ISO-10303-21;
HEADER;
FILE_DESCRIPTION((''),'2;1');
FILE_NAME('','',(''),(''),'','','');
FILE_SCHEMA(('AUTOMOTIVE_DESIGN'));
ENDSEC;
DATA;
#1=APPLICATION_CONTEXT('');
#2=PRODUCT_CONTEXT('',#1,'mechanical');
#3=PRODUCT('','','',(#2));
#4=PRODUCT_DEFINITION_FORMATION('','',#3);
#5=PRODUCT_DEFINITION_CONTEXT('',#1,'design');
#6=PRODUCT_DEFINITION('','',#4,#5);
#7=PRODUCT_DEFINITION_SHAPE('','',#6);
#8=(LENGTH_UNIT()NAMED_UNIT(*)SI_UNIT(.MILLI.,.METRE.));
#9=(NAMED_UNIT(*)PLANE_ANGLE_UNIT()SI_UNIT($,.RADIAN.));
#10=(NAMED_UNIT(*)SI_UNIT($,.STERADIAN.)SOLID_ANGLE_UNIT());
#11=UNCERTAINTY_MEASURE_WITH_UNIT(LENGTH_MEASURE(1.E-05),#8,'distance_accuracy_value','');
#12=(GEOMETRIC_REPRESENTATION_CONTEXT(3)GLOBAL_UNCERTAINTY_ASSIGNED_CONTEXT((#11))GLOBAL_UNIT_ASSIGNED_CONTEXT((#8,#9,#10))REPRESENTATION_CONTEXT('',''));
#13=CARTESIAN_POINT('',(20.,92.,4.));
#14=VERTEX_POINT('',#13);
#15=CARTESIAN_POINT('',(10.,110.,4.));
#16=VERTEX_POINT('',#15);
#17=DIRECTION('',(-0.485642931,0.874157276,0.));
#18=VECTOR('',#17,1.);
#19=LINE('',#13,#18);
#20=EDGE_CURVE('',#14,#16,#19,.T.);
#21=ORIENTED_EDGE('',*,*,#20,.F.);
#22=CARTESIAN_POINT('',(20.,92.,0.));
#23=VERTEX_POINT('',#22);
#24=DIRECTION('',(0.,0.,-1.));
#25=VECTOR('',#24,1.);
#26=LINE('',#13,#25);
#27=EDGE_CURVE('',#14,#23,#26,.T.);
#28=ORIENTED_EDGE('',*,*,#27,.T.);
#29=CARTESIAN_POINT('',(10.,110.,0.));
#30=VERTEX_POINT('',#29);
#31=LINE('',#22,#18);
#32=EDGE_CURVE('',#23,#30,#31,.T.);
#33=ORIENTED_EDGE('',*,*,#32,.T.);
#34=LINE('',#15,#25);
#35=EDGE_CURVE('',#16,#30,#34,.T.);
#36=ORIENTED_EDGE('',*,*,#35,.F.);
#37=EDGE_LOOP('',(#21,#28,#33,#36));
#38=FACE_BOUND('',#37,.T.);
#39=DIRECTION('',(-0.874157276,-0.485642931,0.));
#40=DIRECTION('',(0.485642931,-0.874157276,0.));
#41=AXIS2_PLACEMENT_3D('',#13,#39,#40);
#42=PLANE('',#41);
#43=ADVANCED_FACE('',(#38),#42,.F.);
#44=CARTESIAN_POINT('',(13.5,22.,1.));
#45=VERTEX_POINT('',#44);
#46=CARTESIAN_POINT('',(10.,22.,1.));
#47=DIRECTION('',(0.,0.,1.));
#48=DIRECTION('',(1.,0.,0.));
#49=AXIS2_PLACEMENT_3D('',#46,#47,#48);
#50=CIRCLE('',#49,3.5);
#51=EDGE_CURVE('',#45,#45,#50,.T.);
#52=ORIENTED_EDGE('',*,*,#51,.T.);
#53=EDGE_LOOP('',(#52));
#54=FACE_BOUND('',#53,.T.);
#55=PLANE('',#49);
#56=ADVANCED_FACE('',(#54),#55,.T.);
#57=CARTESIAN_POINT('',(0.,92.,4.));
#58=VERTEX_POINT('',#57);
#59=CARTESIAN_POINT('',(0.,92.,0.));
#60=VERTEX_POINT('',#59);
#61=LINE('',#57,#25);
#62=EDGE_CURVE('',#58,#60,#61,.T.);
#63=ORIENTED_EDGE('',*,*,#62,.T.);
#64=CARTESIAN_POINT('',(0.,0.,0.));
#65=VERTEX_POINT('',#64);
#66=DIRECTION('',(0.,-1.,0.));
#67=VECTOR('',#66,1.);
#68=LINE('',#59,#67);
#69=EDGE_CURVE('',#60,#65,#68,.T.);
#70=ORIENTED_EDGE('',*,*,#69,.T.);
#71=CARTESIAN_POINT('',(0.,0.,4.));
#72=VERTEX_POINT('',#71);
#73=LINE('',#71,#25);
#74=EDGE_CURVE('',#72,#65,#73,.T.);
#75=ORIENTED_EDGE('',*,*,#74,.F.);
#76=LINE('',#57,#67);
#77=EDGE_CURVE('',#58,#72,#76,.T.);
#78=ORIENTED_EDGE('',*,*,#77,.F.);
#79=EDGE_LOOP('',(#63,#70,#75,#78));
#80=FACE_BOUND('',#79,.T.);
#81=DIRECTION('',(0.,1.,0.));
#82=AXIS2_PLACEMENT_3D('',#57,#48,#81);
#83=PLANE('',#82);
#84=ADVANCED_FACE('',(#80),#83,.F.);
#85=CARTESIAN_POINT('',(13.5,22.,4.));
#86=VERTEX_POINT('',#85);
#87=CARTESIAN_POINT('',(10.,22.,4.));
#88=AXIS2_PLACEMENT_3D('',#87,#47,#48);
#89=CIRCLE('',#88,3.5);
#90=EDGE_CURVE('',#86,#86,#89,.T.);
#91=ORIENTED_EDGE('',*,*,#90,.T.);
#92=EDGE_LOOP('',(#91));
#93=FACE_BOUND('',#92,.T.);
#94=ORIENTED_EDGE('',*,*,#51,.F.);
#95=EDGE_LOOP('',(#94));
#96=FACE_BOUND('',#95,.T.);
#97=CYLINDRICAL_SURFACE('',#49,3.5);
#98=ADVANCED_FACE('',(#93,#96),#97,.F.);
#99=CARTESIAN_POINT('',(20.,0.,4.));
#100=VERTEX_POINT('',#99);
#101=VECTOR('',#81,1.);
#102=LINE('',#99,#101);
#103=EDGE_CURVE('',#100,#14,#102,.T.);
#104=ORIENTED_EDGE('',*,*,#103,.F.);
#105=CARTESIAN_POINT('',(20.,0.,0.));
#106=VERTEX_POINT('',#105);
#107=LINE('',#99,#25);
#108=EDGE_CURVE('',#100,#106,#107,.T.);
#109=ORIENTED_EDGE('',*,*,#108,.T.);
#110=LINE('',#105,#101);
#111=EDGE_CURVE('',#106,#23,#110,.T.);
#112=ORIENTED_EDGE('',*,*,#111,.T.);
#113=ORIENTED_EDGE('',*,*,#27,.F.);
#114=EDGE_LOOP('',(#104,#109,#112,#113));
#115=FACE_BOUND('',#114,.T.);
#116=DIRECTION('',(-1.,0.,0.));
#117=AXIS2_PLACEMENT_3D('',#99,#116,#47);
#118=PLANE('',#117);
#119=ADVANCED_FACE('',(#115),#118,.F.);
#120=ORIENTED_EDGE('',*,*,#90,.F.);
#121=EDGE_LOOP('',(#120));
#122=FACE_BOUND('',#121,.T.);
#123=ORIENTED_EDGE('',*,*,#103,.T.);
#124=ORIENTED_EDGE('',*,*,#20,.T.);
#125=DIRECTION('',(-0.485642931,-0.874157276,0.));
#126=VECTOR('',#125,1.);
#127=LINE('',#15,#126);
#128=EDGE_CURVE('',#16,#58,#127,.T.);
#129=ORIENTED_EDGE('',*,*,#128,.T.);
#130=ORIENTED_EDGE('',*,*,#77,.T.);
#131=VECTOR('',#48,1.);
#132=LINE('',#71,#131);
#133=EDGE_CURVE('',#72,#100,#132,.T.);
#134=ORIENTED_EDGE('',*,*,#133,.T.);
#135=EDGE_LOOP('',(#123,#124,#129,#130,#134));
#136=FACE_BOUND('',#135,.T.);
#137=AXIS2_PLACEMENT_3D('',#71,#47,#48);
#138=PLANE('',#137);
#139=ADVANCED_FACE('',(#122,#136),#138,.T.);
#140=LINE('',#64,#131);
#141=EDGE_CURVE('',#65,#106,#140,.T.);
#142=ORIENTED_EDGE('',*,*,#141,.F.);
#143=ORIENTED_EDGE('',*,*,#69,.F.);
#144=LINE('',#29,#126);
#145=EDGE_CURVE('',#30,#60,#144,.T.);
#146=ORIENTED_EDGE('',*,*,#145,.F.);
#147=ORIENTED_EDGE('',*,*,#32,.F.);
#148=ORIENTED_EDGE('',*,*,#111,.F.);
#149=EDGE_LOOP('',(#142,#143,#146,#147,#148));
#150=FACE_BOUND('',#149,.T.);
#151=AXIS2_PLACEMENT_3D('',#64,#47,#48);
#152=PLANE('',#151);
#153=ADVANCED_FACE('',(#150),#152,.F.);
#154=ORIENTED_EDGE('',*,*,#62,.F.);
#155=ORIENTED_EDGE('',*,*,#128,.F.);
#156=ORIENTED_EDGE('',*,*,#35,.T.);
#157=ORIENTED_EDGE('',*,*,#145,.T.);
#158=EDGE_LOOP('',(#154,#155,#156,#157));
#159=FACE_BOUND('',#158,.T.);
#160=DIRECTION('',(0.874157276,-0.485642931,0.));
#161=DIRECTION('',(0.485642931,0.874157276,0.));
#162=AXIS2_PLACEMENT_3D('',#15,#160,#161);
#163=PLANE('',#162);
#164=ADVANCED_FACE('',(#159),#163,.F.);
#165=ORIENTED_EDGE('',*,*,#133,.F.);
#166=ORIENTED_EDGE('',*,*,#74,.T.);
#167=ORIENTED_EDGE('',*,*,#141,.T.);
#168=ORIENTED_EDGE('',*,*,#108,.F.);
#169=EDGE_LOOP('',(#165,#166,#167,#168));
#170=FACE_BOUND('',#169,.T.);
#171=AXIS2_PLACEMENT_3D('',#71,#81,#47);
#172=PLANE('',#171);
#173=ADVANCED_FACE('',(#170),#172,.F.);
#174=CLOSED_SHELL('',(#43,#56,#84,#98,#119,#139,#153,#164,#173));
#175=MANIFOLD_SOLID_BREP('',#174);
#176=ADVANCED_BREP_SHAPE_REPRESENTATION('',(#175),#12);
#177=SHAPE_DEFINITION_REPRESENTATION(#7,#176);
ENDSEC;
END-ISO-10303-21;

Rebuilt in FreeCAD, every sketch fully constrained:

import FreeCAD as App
import Part
import Sketcher

V = App.Vector


def add_polygon(sketch, points):
    """Adds a closed chain of lines whose ends are joined by coincident constraints."""
    first, n = sketch.GeometryCount, len(points)
    for a, b in zip(points, points[1:] + points[:1]):
        sketch.addGeometry(Part.LineSegment(App.Vector(*a, 0), App.Vector(*b, 0)), False)
    for i in range(n):
        sketch.addConstraint(Sketcher.Constraint("Coincident", first + i, 2, first + (i + 1) % n, 1))

doc = App.newDocument("Part")
body = doc.addObject("PartDesign::Body", "Body")

# Sketch on XY plane
sketch1 = body.newObject("Sketcher::SketchObject", "Sketch")
sketch1.AttachmentSupport = (doc.getObject("XY_Plane"), [""])
sketch1.MapMode = "FlatFace"
add_polygon(sketch1, [(0, 0), (20, 0), (20, 92), (10, 110), (0, 92)])  # lines 0-4
sketch1.addConstraint([
    Sketcher.Constraint("Horizontal", 0),
    Sketcher.Constraint("Vertical", 1),
    Sketcher.Constraint("Vertical", 4),
    Sketcher.Constraint("Coincident", 4, 2, -1, 1),
    Sketcher.Constraint("Horizontal", 1, 2, 3, 2),
    Sketcher.Constraint("Equal", 2, 3),
    Sketcher.Constraint("DistanceX", 0, 1, 0, 2, 20.0),
    Sketcher.Constraint("DistanceY", 1, 1, 1, 2, 92.0),
    Sketcher.Constraint("DistanceY", -1, 1, 2, 2, 110.0),
])
pad1 = body.newObject("PartDesign::Pad", "Pad")
pad1.Profile = sketch1
pad1.Length = 4

# Sketch on XY plane
sketch2 = body.newObject("Sketcher::SketchObject", "Sketch001")
sketch2.AttachmentSupport = (doc.getObject("XY_Plane"), [""])
sketch2.MapMode = "FlatFace"
sketch2.AttachmentOffset = App.Placement(V(0, 0, 4), App.Rotation())
sketch2.addGeometry(Part.Circle(V(10, 22, 0), V(0, 0, 1), 3.5), False)
sketch2.addConstraint([
    Sketcher.Constraint("Diameter", 0, 7.0),
    Sketcher.Constraint("DistanceX", -1, 1, 0, 3, 10.0),
    Sketcher.Constraint("DistanceY", -1, 1, 0, 3, 22.0),
])
pocket1 = body.newObject("PartDesign::Pocket", "Pocket")
pocket1.Profile = sketch2
pocket1.Length = 3

doc.recompute()
